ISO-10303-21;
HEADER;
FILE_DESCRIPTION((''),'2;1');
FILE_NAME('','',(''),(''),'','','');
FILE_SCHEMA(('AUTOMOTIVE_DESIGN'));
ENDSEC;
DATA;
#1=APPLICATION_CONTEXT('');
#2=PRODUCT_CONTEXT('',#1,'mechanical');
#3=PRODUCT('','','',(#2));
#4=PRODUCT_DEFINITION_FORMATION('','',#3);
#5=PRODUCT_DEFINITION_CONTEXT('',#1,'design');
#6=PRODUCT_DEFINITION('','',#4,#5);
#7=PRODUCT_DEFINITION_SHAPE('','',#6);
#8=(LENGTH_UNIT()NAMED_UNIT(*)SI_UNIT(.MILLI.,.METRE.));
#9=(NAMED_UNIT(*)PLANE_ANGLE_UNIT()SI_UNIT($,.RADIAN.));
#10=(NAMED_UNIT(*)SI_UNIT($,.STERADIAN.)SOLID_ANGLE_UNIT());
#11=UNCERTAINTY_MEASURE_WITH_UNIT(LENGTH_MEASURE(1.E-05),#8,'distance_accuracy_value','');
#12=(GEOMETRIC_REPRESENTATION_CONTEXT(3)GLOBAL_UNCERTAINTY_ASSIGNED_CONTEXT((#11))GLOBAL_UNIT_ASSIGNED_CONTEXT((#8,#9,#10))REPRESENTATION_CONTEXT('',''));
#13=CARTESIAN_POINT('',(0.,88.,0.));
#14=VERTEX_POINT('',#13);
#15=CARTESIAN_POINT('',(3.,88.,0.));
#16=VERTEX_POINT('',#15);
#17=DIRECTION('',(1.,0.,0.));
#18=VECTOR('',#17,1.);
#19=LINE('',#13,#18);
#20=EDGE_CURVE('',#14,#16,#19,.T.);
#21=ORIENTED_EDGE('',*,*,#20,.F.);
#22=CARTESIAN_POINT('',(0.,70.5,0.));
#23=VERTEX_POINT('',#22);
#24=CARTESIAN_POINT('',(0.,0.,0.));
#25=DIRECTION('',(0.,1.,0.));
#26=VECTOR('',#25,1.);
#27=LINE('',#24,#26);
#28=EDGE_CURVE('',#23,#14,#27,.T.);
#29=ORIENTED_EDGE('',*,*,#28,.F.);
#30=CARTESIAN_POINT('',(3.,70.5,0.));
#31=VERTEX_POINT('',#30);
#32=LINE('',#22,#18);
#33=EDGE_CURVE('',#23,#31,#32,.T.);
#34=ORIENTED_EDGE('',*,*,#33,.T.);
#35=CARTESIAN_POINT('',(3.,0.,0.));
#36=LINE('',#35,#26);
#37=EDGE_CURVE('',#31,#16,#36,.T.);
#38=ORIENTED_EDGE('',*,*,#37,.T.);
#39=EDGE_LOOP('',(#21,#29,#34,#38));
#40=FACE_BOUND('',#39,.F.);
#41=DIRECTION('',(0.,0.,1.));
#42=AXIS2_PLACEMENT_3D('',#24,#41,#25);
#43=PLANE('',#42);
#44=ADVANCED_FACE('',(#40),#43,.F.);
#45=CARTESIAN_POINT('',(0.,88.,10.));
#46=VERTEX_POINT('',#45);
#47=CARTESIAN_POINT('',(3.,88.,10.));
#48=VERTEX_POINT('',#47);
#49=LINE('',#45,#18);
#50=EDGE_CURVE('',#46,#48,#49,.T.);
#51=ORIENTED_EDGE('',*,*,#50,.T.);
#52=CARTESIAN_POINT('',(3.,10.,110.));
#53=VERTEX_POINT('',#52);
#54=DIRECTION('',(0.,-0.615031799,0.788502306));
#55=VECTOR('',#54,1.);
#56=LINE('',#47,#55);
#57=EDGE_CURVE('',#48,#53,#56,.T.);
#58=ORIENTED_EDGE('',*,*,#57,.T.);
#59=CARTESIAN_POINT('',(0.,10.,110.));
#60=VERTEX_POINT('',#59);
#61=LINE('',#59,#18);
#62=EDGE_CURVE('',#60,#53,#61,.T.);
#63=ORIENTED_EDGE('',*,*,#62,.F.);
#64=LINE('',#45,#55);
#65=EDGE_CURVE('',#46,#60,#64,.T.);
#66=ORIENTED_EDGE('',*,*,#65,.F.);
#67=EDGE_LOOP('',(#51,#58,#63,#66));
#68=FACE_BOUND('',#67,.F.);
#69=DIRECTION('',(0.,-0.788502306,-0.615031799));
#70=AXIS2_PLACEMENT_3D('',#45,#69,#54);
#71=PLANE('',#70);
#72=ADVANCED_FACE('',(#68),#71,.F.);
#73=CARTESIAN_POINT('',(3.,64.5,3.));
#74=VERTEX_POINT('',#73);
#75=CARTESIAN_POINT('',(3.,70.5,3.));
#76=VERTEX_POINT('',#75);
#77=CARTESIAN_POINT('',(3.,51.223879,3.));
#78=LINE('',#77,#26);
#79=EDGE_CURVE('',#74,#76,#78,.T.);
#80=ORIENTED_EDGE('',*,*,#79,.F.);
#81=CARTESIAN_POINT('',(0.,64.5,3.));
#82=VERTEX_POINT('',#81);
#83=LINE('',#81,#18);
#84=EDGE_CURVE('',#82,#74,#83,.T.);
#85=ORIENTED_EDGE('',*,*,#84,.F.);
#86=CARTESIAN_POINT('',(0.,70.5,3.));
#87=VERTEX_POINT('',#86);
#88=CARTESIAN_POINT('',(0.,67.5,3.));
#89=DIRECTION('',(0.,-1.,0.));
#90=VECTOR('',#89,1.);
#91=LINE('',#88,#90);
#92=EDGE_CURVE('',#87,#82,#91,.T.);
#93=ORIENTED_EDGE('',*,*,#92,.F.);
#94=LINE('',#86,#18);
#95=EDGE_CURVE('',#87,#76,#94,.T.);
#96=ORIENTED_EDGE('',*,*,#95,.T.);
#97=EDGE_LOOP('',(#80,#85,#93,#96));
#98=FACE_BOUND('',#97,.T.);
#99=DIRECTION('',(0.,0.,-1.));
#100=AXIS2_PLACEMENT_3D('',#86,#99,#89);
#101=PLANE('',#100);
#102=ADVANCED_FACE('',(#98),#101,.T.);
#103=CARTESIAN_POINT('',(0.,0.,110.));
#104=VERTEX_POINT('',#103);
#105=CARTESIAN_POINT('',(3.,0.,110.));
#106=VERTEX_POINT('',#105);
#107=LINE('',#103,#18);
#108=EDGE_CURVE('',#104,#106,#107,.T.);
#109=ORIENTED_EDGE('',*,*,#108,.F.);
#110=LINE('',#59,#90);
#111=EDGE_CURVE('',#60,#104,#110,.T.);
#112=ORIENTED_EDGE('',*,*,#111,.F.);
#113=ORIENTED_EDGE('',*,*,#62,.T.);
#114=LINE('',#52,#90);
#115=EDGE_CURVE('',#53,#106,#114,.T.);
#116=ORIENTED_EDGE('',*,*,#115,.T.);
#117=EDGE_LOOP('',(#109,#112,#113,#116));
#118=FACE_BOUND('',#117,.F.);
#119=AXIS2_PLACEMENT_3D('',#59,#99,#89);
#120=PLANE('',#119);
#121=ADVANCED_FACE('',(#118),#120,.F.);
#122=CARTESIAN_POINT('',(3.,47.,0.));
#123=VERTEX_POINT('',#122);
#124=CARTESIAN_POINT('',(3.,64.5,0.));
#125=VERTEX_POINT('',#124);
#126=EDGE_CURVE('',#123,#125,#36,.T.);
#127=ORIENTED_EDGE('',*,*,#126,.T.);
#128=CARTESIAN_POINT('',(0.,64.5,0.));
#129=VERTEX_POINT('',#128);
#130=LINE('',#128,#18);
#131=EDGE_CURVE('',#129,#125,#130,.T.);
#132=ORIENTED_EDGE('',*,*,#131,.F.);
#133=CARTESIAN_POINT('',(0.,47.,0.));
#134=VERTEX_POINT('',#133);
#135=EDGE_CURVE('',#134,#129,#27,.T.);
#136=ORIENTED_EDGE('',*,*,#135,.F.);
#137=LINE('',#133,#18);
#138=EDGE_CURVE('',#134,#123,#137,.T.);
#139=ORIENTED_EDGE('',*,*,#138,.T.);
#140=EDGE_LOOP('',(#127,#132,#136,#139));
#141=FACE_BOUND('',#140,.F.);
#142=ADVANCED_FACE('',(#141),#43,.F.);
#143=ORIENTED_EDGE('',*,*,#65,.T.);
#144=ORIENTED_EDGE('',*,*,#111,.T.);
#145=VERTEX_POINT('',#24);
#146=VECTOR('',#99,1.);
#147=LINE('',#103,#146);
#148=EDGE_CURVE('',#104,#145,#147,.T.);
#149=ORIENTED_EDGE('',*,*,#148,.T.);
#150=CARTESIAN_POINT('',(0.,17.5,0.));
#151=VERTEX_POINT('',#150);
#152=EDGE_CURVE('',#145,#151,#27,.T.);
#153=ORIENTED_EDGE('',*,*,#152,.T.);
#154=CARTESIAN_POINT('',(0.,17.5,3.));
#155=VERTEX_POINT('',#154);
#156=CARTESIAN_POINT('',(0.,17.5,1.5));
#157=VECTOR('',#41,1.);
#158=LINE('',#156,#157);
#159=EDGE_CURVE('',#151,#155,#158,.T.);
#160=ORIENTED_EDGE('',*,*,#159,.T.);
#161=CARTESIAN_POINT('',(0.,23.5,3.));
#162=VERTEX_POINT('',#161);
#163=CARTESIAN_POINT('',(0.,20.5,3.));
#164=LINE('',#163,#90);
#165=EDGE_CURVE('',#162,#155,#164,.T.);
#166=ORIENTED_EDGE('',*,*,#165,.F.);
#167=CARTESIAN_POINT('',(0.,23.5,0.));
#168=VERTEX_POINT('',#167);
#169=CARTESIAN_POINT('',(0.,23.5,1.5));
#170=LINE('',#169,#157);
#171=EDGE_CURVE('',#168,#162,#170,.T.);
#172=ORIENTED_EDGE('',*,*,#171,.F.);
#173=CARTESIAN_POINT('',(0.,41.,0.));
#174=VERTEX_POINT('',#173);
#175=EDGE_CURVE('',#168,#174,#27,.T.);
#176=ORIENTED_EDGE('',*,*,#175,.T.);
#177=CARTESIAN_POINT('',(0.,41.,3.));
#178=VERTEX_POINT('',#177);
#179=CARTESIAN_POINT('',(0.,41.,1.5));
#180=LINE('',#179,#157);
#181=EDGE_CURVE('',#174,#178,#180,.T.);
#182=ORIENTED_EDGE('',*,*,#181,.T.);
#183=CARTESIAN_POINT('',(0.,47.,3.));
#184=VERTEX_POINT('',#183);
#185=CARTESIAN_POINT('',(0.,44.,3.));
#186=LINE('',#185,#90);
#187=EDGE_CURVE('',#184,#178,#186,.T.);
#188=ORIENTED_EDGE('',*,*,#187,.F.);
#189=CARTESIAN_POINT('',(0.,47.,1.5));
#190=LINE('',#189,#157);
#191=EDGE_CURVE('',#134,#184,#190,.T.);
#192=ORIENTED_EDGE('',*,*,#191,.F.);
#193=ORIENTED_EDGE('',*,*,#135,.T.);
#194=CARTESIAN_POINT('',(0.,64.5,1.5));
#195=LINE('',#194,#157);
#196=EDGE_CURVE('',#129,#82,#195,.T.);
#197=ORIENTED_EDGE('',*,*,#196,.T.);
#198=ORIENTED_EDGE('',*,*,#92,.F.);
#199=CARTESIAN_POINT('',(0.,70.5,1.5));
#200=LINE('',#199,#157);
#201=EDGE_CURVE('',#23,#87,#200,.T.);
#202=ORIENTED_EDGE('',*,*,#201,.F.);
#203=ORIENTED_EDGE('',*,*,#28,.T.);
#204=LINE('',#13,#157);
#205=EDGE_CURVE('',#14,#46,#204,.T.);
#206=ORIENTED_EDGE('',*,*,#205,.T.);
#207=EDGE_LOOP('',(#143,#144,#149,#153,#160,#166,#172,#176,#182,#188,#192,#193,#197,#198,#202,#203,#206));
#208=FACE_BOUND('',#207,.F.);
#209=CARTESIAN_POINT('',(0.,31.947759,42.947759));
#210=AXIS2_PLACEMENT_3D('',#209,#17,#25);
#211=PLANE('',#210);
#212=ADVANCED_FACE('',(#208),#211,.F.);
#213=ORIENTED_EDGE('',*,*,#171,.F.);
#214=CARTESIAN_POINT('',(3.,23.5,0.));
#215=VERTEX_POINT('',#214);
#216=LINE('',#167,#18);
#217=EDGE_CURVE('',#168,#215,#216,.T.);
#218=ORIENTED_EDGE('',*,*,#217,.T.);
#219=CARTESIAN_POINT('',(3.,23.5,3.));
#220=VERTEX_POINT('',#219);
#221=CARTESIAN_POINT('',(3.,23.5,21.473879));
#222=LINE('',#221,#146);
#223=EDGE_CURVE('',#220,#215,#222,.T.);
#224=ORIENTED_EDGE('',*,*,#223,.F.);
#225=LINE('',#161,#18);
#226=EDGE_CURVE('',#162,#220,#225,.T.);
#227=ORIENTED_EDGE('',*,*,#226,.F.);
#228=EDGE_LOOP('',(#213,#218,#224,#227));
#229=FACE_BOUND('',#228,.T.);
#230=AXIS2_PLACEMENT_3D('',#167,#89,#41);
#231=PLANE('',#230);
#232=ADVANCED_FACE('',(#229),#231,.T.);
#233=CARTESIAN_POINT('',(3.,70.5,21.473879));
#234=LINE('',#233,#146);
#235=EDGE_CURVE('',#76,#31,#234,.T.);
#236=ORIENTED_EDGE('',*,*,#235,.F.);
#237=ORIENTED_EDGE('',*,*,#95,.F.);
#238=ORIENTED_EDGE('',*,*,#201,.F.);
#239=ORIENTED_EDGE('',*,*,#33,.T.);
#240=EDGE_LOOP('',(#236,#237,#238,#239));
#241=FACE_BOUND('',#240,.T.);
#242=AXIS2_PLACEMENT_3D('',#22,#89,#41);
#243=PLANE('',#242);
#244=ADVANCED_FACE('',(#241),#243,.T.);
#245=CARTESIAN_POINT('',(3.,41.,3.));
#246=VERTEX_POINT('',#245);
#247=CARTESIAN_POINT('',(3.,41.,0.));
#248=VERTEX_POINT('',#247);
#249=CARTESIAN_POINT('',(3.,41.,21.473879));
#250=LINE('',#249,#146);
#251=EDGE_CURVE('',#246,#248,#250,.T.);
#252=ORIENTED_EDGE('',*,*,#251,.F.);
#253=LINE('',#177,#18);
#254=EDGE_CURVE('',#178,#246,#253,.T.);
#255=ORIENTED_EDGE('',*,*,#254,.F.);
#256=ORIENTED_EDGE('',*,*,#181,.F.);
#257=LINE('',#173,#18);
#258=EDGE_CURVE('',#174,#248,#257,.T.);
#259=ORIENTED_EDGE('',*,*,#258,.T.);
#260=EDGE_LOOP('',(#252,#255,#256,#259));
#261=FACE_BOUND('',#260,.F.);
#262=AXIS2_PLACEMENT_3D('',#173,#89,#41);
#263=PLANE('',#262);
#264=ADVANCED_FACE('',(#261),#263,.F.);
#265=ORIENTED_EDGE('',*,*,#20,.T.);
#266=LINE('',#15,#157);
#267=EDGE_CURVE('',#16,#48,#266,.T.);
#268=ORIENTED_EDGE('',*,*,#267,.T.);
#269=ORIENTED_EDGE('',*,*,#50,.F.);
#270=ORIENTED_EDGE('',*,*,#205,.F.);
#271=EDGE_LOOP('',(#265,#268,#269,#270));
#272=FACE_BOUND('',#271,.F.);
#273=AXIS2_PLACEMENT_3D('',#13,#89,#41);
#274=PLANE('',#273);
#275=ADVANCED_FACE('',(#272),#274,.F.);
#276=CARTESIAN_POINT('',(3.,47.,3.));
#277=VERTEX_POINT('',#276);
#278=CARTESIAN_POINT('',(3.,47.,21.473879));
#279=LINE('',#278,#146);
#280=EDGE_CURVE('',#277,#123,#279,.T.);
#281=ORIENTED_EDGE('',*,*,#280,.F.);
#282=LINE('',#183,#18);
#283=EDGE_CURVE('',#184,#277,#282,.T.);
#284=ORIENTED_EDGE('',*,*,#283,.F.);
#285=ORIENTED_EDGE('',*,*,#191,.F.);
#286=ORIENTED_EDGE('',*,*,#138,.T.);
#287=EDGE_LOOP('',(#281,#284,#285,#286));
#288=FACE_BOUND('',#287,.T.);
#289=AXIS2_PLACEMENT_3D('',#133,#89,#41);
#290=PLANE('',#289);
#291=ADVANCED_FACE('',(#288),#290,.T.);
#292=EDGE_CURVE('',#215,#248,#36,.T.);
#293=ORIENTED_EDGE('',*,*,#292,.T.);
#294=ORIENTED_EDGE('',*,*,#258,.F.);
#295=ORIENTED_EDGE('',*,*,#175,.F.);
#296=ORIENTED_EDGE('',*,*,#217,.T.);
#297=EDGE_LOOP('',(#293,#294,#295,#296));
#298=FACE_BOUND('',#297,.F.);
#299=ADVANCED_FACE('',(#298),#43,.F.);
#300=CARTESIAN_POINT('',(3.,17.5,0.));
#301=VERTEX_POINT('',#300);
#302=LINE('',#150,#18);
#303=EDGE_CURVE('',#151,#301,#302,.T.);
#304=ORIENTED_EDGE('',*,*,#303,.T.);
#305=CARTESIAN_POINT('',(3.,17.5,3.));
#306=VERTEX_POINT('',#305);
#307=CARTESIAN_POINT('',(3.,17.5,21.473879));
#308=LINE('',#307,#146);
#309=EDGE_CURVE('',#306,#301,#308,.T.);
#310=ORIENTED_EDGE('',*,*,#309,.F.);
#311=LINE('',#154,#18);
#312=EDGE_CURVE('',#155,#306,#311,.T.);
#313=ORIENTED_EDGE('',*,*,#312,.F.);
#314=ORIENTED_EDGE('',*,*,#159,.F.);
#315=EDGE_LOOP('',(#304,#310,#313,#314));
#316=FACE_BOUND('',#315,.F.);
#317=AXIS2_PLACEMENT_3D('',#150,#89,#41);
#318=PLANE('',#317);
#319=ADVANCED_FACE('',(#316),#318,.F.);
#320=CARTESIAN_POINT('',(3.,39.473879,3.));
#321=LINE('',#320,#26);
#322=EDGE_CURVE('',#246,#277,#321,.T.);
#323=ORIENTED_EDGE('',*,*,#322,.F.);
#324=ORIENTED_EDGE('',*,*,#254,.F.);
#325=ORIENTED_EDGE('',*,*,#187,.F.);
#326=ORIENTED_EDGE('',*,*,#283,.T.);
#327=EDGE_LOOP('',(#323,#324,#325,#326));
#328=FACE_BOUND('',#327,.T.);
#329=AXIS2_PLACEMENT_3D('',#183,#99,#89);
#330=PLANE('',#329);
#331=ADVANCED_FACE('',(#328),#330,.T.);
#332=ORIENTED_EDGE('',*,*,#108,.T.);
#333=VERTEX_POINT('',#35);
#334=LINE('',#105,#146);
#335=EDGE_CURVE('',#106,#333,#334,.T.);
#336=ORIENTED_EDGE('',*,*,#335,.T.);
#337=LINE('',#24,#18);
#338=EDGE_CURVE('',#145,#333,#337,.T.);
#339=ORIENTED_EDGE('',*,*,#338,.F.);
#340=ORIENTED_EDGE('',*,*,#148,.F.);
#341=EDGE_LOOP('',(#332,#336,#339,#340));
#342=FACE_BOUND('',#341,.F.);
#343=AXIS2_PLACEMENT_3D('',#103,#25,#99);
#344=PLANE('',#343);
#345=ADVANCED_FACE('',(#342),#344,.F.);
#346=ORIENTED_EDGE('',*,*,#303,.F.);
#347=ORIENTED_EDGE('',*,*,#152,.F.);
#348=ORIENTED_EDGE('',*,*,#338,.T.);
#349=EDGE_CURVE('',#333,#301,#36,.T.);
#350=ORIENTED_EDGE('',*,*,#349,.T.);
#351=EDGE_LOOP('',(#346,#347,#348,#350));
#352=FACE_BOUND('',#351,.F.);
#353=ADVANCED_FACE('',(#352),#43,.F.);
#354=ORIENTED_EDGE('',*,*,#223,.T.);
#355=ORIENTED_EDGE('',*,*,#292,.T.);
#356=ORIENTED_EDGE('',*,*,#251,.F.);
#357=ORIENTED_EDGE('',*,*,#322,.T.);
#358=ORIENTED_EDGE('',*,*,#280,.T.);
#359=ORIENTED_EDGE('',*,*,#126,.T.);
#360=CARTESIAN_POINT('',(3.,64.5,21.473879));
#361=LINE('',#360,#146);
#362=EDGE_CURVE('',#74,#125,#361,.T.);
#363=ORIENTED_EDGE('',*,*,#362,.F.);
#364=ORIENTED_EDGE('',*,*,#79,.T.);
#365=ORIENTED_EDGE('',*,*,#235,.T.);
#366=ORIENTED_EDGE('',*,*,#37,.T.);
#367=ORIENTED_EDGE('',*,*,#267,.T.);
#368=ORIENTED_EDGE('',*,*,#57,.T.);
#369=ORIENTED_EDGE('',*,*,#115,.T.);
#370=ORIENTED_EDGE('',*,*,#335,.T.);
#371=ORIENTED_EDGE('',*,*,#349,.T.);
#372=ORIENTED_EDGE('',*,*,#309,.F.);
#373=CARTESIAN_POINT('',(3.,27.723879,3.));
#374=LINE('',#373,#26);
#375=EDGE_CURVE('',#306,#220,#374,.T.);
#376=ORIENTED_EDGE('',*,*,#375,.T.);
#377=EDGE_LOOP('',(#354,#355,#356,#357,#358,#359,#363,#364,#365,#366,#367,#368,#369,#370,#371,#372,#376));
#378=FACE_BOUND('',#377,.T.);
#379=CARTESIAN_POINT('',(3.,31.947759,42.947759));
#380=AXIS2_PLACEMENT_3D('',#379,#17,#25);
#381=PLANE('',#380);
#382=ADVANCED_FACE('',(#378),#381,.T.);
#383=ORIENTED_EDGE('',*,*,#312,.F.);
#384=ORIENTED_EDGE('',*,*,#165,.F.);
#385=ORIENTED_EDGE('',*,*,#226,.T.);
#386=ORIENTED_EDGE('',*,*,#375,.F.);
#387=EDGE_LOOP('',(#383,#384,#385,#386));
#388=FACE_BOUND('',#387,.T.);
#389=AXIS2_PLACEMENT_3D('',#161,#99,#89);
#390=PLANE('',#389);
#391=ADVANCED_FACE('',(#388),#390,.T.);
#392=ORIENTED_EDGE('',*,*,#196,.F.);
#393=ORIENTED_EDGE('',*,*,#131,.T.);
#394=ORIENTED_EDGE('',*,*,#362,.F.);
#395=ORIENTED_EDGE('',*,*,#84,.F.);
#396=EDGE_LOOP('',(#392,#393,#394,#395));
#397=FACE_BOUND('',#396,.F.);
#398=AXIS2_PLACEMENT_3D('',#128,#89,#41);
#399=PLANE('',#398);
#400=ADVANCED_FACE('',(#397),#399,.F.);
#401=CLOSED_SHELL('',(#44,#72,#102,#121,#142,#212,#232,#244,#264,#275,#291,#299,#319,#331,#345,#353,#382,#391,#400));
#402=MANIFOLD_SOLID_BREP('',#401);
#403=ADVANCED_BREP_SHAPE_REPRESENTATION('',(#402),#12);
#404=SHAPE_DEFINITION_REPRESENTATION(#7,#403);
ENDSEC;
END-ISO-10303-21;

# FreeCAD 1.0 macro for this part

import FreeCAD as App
import Part
import Sketcher
from FreeCAD import Vector
Q = App.Units.Quantity


def add_polygon(sketch, points):
    """Adds a closed chain of lines whose ends are joined by coincident constraints."""
    first, n = sketch.GeometryCount, len(points)
    for a, b in zip(points, points[1:] + points[:1]):
        sketch.addGeometry(Part.LineSegment(App.Vector(*a, 0), App.Vector(*b, 0)), False)
    for i in range(n):
        sketch.addConstraint(Sketcher.Constraint("Coincident", first + i, 2, first + (i + 1) % n, 1))

doc = App.newDocument("Part")
body = doc.addObject("PartDesign::Body", "Body")

sketch1 = body.newObject("Sketcher::SketchObject", "Sketch")
sketch1.AttachmentSupport = (doc.getObject("YZ_Plane"), [""])
sketch1.MapMode = "FlatFace"
add_polygon(sketch1, [(0, 110), (0, 0), (88, 0), (88, 10), (10, 110)])
sketch1.addConstraint([
    Sketcher.Constraint("Vertical", 0),
    Sketcher.Constraint("Horizontal", 1),
    Sketcher.Constraint("Vertical", 2),
    Sketcher.Constraint("Horizontal", 4),
    Sketcher.Constraint("Coincident", 0, 2, -1, 1),
    Sketcher.Constraint("Equal", 4, 2),
    Sketcher.Constraint("DistanceX", 1, 1, 1, 2, Q("88 mm")),
    Sketcher.Constraint("DistanceX", 4, 2, 4, 1, Q("10 mm")),
    Sketcher.Constraint("DistanceY", 0, 2, 0, 1, Q("110 mm")),
])
pad1 = body.newObject("PartDesign::Pad", "Pad")
pad1.Profile = sketch1
pad1.Length = 3

sketch2 = body.newObject("Sketcher::SketchObject", "Sketch001")
sketch2.AttachmentSupport = (doc.getObject("YZ_Plane"), [""])
sketch2.MapMode = "FlatFace"
add_polygon(sketch2, [(47, 3), (47, 0), (41, 0), (41, 3)])
add_polygon(sketch2, [(23.5, 3), (23.5, 0), (17.5, 0), (17.5, 3)])
add_polygon(sketch2, [(70.5, 3), (70.5, 0), (64.5, 0), (64.5, 3)])
sketch2.addConstraint([
    Sketcher.Constraint("Vertical", 0),
    Sketcher.Constraint("Horizontal", 1),
    Sketcher.Constraint("Vertical", 2),
    Sketcher.Constraint("Horizontal", 3),
    Sketcher.Constraint("Vertical", 4),
    Sketcher.Constraint("Horizontal", 5),
    Sketcher.Constraint("Vertical", 6),
    Sketcher.Constraint("Horizontal", 7),
    Sketcher.Constraint("Vertical", 8),
    Sketcher.Constraint("Horizontal", 9),
    Sketcher.Constraint("Vertical", 10),
    Sketcher.Constraint("Horizontal", 11),
    Sketcher.Constraint("PointOnObject", 0, 2, -1),
    Sketcher.Constraint("PointOnObject", 4, 2, -1),
    Sketcher.Constraint("PointOnObject", 8, 2, -1),
    Sketcher.Constraint("Horizontal", 3, 2, 6, 2),
    Sketcher.Constraint("Horizontal", 7, 2, 10, 2),
    Sketcher.Constraint("Equal", 3, 5),
    Sketcher.Constraint("Equal", 7, 9),
    Sketcher.Constraint("DistanceX", 1, 2, 1, 1, Q("6 mm")),
    Sketcher.Constraint("DistanceY", 0, 2, 0, 1, Q("3 mm")),
    Sketcher.Constraint("DistanceX", -1, 1, 0, 2, Q("47 mm")),
    Sketcher.Constraint("DistanceX", 4, 2, 8, 2, Q("47 mm")),
    Sketcher.Constraint("DistanceX", -1, 1, 4, 2, Q("23.5 mm")),
])
pocket1 = body.newObject("PartDesign::Pocket", "Pocket")
pocket1.Profile = sketch2
pocket1.Length = 25
pocket1.Reversed = True

doc.recompute()
